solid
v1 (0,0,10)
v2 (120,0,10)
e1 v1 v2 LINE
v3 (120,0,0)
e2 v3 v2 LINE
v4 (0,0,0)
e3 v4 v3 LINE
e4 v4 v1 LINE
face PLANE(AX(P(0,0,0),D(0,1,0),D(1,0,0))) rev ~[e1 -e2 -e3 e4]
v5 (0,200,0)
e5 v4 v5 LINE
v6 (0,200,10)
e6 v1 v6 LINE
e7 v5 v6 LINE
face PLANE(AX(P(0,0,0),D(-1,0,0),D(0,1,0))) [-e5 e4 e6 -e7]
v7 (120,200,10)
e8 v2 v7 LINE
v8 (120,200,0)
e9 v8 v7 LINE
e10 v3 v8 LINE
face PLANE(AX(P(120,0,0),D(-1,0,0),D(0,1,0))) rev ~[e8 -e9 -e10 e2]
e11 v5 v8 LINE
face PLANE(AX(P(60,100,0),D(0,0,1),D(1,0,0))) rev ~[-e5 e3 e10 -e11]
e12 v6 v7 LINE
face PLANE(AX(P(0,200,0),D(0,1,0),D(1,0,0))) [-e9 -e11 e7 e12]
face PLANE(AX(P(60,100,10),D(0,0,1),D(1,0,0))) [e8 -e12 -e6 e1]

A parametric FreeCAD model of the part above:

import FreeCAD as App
import Part
import Sketcher
from FreeCAD import Vector
Q = App.Units.Quantity


def add_polygon(sketch, points):
    """Adds a closed chain of lines whose ends are joined by coincident constraints."""
    first, n = sketch.GeometryCount, len(points)
    for a, b in zip(points, points[1:] + points[:1]):
        sketch.addGeometry(Part.LineSegment(App.Vector(*a, 0), App.Vector(*b, 0)), False)
    for i in range(n):
        sketch.addConstraint(Sketcher.Constraint("Coincident", first + i, 2, first + (i + 1) % n, 1))

doc = App.newDocument("Part")
params = doc.addObject("Spreadsheet::Sheet", "Params")
for row, (alias, value) in enumerate([
    ("sketch1_width", "120 mm"),
    ("sketch1_height", "200 mm"),
    ("pad1_length", "10 mm"),
], start=1):
    params.set(f"A{row}", alias)
    params.set(f"B{row}", "=" + value)
    params.setAlias(f"B{row}", alias)

body = doc.addObject("PartDesign::Body", "Body")

sketch1 = body.newObject("Sketcher::SketchObject", "Sketch")
sketch1.AttachmentSupport = (doc.getObject("XY_Plane"), [""])
sketch1.MapMode = "FlatFace"
add_polygon(sketch1, [(0, 200), (0, 0), (120, 0), (120, 200)])
sketch1.addConstraint(Sketcher.Constraint("Vertical", 0))
sketch1.addConstraint(Sketcher.Constraint("Horizontal", 1))
sketch1.addConstraint(Sketcher.Constraint("Vertical", 2))
sketch1.addConstraint(Sketcher.Constraint("Horizontal", 3))
sketch1.addConstraint(Sketcher.Constraint("Coincident", 0, 2, -1, 1))
sketch1.addConstraint(Sketcher.Constraint("DistanceX", 1, 1, 1, 2, Q("120 mm")))
sketch1.addConstraint(Sketcher.Constraint("DistanceY", 0, 2, 0, 1, Q("200 mm")))
sketch1.setExpression("Constraints[9]", "Params.sketch1_width")
sketch1.setExpression("Constraints[10]", "Params.sketch1_height")
pad1 = body.newObject("PartDesign::Pad", "Pad")
pad1.Profile = sketch1
pad1.setExpression("Length", "Params.pad1_length")

doc.recompute()
